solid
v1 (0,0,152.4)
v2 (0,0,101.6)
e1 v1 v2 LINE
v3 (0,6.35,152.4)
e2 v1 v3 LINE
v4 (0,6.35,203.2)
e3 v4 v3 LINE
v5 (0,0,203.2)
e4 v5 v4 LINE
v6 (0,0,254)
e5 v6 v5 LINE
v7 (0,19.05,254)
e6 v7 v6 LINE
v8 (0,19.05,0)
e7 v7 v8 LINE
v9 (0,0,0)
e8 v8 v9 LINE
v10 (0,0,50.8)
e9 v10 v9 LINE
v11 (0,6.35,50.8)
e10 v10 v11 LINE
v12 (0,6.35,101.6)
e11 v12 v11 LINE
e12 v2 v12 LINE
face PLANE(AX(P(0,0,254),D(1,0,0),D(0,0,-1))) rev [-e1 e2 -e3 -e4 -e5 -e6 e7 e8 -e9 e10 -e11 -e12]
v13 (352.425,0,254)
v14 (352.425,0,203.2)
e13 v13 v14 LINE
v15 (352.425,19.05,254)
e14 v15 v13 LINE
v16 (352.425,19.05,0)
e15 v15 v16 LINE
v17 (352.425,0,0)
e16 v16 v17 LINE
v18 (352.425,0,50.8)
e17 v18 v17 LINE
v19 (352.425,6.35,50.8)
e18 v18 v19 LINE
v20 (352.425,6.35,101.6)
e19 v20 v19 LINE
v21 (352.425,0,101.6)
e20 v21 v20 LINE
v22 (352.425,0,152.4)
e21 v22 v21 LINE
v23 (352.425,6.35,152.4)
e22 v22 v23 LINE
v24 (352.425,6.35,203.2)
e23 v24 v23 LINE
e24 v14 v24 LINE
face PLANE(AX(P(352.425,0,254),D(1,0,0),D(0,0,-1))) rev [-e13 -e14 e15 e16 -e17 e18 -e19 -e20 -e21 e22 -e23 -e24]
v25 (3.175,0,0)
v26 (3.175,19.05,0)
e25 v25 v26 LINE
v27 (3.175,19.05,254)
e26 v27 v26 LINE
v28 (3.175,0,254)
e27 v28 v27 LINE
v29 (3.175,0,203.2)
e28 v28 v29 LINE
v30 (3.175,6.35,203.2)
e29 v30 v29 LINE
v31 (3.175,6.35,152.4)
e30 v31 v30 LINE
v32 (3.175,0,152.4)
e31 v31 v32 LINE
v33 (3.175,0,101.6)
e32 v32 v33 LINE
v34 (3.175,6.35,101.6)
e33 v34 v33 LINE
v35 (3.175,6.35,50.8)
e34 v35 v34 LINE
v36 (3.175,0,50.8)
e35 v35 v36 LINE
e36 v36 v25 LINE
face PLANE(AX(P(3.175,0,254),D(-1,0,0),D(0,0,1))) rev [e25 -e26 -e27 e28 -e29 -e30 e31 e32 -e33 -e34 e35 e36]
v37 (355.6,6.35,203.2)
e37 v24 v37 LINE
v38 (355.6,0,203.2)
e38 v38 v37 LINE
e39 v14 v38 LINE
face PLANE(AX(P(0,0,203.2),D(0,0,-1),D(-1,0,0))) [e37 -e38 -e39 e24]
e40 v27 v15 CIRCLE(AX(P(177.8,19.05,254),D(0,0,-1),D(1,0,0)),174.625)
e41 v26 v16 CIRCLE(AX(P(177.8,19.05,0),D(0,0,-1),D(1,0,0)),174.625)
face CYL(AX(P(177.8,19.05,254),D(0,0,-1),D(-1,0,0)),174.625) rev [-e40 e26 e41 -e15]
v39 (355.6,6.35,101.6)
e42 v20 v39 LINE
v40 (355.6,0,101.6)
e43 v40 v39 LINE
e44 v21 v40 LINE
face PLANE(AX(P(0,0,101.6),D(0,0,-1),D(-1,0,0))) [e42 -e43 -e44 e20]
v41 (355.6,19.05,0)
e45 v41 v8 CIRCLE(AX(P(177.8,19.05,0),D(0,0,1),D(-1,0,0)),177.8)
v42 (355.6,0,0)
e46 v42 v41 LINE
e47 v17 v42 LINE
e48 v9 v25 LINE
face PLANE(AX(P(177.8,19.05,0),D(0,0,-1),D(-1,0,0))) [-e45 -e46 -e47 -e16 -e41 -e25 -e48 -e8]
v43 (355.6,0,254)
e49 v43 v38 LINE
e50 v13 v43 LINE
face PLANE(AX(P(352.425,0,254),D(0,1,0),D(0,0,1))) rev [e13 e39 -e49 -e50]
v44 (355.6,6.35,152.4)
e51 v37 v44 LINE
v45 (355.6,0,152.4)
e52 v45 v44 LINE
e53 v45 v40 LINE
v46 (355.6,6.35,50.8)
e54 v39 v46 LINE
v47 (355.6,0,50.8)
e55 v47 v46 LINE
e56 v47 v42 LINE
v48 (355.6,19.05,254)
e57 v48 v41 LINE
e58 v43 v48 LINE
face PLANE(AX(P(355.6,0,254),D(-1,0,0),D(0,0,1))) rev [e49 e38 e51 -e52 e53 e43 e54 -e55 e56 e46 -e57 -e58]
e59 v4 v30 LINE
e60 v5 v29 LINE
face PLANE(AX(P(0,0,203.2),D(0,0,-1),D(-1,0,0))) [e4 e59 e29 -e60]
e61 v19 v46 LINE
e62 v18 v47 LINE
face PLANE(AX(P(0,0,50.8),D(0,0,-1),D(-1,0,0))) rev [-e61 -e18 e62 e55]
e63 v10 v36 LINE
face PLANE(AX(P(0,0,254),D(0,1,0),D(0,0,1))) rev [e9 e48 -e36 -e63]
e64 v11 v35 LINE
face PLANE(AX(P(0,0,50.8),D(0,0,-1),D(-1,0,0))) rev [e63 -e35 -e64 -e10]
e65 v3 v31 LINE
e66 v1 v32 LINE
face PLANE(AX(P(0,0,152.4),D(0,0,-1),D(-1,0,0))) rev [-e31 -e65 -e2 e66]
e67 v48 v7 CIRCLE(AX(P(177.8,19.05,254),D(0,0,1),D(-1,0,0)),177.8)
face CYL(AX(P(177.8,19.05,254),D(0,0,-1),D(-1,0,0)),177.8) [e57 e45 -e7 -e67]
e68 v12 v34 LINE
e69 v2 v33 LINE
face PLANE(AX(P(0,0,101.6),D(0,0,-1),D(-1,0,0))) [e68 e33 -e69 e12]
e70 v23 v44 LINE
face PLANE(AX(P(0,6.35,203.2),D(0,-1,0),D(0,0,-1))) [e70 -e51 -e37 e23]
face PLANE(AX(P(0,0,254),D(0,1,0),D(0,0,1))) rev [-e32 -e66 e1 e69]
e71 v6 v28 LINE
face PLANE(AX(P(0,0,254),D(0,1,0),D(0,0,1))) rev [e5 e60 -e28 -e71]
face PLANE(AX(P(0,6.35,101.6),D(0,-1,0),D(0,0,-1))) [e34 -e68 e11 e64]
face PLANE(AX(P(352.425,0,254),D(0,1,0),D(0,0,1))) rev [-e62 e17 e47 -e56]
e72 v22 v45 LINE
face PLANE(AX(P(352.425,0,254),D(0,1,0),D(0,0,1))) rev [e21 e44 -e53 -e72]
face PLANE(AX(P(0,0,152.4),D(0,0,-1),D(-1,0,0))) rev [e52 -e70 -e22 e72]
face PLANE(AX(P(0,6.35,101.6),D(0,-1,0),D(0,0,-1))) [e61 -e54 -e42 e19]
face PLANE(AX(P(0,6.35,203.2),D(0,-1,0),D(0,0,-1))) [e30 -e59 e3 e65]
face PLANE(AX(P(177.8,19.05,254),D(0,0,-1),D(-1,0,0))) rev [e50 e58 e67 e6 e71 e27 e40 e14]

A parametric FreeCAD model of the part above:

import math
import FreeCAD as App
import Part
import Sketcher
from FreeCAD import Vector
Q = App.Units.Quantity

doc = App.newDocument("Part")
body = doc.addObject("PartDesign::Body", "Body")

sketch1 = body.newObject("Sketcher::SketchObject", "Sketch")
sketch1.AttachmentSupport = (doc.getObject("XY_Plane"), [""])
sketch1.MapMode = "FlatFace"
sketch1.addGeometry([
    Part.LineSegment(Vector(0, 0, 0), Vector(3.2, 0, 0)),
    Part.LineSegment(Vector(3.2, 0, 0), Vector(3.2, 19.1, 0)),
    Part.ArcOfCircle(Part.Circle(Vector(177.8, 19.1, 0), Vector(0, 0, 1), 174.6), math.radians(0), math.radians(180)),
    Part.LineSegment(Vector(352.4, 19.1, 0), Vector(352.4, 0, 0)),
    Part.LineSegment(Vector(352.4, 0, 0), Vector(355.6, 0, 0)),
    Part.LineSegment(Vector(355.6, 0, 0), Vector(355.6, 19.1, 0)),
    Part.ArcOfCircle(Part.Circle(Vector(177.8, 19.1, 0), Vector(0, 0, 1), 177.8), math.radians(0), math.radians(180)),
    Part.LineSegment(Vector(0, 19.1, 0), Vector(0, 0, 0)),
], False)
sketch1.addConstraint([
    Sketcher.Constraint("Coincident", 0, 2, 1, 1),
    Sketcher.Constraint("Tangent", 1, 2, 2, 2),
    Sketcher.Constraint("Tangent", 2, 1, 3, 1),
    Sketcher.Constraint("Coincident", 3, 2, 4, 1),
    Sketcher.Constraint("Coincident", 4, 2, 5, 1),
    Sketcher.Constraint("Tangent", 5, 2, 6, 1),
    Sketcher.Constraint("Tangent", 6, 2, 7, 1),
    Sketcher.Constraint("Coincident", 7, 2, 0, 1),
    Sketcher.Constraint("Horizontal", 0),
    Sketcher.Constraint("Vertical", 1),
    Sketcher.Constraint("Vertical", 3),
    Sketcher.Constraint("Horizontal", 4),
    Sketcher.Constraint("Vertical", 5),
    Sketcher.Constraint("Vertical", 7),
    Sketcher.Constraint("Coincident", 7, 2, -1, 1),
    Sketcher.Constraint("Coincident", 6, 3, 2, 3),
    Sketcher.Constraint("PointOnObject", 3, 2, -1),
    Sketcher.Constraint("Radius", 6, Q("7 in")),
    Sketcher.Constraint("Radius", 2, Q("6.875 in")),
    Sketcher.Constraint("DistanceY", 1, 1, 1, 2, Q("0.75 in")),
])
pad1 = body.newObject("PartDesign::Pad", "Pad")
pad1.Profile = sketch1
pad1.Length = Q("10 in")

sketch2 = body.newObject("Sketcher::SketchObject", "Sketch001")
sketch2.AttachmentSupport = (doc.getObject("YZ_Plane"), [""])
sketch2.MapMode = "FlatFace"
sketch2.AttachmentOffset = App.Placement(Vector(0, 0, 14 * 25.4), App.Rotation())
sketch2.addGeometry([
    Part.LineSegment(Vector(6, 203, 0), Vector(0, 203, 0)),
    Part.LineSegment(Vector(0, 203, 0), Vector(0, 152, 0)),
    Part.LineSegment(Vector(0, 152, 0), Vector(6, 152, 0)),
    Part.LineSegment(Vector(6, 152, 0), Vector(6, 203, 0)),
    Part.LineSegment(Vector(6, 102, 0), Vector(0, 102, 0)),
    Part.LineSegment(Vector(0, 102, 0), Vector(0, 51, 0)),
    Part.LineSegment(Vector(0, 51, 0), Vector(6, 51, 0)),
    Part.LineSegment(Vector(6, 51, 0), Vector(6, 102, 0)),
], False)
sketch2.addConstraint([
    Sketcher.Constraint("Coincident", 0, 2, 1, 1),
    Sketcher.Constraint("Coincident", 1, 2, 2, 1),
    Sketcher.Constraint("Coincident", 2, 2, 3, 1),
    Sketcher.Constraint("Coincident", 3, 2, 0, 1),
    Sketcher.Constraint("Coincident", 4, 2, 5, 1),
    Sketcher.Constraint("Coincident", 5, 2, 6, 1),
    Sketcher.Constraint("Coincident", 6, 2, 7, 1),
    Sketcher.Constraint("Coincident", 7, 2, 4, 1),
    Sketcher.Constraint("Horizontal", 0),
    Sketcher.Constraint("Vertical", 1),
    Sketcher.Constraint("Horizontal", 2),
    Sketcher.Constraint("Vertical", 3),
    Sketcher.Constraint("Horizontal", 4),
    Sketcher.Constraint("Vertical", 5),
    Sketcher.Constraint("Horizontal", 6),
    Sketcher.Constraint("Vertical", 7),
    Sketcher.Constraint("PointOnObject", 0, 2, -2),
    Sketcher.Constraint("PointOnObject", 4, 2, -2),
    Sketcher.Constraint("Vertical", 3, 2, 6, 2),
    Sketcher.Constraint("Equal", 3, 5),
    Sketcher.Constraint("DistanceY", 1, 2, 1, 1, Q("2 in")),
    Sketcher.Constraint("DistanceY", -1, 1, 0, 2, Q("8 in")),
    Sketcher.Constraint("DistanceY", -1, 1, 4, 2, Q("4 in")),
    Sketcher.Constraint("DistanceX", 0, 2, 0, 1, Q("0.25 in")),
])
pocket1 = body.newObject("PartDesign::Pocket", "Pocket")
pocket1.Profile = sketch2
pocket1.Type = "ThroughAll"

doc.recompute()
